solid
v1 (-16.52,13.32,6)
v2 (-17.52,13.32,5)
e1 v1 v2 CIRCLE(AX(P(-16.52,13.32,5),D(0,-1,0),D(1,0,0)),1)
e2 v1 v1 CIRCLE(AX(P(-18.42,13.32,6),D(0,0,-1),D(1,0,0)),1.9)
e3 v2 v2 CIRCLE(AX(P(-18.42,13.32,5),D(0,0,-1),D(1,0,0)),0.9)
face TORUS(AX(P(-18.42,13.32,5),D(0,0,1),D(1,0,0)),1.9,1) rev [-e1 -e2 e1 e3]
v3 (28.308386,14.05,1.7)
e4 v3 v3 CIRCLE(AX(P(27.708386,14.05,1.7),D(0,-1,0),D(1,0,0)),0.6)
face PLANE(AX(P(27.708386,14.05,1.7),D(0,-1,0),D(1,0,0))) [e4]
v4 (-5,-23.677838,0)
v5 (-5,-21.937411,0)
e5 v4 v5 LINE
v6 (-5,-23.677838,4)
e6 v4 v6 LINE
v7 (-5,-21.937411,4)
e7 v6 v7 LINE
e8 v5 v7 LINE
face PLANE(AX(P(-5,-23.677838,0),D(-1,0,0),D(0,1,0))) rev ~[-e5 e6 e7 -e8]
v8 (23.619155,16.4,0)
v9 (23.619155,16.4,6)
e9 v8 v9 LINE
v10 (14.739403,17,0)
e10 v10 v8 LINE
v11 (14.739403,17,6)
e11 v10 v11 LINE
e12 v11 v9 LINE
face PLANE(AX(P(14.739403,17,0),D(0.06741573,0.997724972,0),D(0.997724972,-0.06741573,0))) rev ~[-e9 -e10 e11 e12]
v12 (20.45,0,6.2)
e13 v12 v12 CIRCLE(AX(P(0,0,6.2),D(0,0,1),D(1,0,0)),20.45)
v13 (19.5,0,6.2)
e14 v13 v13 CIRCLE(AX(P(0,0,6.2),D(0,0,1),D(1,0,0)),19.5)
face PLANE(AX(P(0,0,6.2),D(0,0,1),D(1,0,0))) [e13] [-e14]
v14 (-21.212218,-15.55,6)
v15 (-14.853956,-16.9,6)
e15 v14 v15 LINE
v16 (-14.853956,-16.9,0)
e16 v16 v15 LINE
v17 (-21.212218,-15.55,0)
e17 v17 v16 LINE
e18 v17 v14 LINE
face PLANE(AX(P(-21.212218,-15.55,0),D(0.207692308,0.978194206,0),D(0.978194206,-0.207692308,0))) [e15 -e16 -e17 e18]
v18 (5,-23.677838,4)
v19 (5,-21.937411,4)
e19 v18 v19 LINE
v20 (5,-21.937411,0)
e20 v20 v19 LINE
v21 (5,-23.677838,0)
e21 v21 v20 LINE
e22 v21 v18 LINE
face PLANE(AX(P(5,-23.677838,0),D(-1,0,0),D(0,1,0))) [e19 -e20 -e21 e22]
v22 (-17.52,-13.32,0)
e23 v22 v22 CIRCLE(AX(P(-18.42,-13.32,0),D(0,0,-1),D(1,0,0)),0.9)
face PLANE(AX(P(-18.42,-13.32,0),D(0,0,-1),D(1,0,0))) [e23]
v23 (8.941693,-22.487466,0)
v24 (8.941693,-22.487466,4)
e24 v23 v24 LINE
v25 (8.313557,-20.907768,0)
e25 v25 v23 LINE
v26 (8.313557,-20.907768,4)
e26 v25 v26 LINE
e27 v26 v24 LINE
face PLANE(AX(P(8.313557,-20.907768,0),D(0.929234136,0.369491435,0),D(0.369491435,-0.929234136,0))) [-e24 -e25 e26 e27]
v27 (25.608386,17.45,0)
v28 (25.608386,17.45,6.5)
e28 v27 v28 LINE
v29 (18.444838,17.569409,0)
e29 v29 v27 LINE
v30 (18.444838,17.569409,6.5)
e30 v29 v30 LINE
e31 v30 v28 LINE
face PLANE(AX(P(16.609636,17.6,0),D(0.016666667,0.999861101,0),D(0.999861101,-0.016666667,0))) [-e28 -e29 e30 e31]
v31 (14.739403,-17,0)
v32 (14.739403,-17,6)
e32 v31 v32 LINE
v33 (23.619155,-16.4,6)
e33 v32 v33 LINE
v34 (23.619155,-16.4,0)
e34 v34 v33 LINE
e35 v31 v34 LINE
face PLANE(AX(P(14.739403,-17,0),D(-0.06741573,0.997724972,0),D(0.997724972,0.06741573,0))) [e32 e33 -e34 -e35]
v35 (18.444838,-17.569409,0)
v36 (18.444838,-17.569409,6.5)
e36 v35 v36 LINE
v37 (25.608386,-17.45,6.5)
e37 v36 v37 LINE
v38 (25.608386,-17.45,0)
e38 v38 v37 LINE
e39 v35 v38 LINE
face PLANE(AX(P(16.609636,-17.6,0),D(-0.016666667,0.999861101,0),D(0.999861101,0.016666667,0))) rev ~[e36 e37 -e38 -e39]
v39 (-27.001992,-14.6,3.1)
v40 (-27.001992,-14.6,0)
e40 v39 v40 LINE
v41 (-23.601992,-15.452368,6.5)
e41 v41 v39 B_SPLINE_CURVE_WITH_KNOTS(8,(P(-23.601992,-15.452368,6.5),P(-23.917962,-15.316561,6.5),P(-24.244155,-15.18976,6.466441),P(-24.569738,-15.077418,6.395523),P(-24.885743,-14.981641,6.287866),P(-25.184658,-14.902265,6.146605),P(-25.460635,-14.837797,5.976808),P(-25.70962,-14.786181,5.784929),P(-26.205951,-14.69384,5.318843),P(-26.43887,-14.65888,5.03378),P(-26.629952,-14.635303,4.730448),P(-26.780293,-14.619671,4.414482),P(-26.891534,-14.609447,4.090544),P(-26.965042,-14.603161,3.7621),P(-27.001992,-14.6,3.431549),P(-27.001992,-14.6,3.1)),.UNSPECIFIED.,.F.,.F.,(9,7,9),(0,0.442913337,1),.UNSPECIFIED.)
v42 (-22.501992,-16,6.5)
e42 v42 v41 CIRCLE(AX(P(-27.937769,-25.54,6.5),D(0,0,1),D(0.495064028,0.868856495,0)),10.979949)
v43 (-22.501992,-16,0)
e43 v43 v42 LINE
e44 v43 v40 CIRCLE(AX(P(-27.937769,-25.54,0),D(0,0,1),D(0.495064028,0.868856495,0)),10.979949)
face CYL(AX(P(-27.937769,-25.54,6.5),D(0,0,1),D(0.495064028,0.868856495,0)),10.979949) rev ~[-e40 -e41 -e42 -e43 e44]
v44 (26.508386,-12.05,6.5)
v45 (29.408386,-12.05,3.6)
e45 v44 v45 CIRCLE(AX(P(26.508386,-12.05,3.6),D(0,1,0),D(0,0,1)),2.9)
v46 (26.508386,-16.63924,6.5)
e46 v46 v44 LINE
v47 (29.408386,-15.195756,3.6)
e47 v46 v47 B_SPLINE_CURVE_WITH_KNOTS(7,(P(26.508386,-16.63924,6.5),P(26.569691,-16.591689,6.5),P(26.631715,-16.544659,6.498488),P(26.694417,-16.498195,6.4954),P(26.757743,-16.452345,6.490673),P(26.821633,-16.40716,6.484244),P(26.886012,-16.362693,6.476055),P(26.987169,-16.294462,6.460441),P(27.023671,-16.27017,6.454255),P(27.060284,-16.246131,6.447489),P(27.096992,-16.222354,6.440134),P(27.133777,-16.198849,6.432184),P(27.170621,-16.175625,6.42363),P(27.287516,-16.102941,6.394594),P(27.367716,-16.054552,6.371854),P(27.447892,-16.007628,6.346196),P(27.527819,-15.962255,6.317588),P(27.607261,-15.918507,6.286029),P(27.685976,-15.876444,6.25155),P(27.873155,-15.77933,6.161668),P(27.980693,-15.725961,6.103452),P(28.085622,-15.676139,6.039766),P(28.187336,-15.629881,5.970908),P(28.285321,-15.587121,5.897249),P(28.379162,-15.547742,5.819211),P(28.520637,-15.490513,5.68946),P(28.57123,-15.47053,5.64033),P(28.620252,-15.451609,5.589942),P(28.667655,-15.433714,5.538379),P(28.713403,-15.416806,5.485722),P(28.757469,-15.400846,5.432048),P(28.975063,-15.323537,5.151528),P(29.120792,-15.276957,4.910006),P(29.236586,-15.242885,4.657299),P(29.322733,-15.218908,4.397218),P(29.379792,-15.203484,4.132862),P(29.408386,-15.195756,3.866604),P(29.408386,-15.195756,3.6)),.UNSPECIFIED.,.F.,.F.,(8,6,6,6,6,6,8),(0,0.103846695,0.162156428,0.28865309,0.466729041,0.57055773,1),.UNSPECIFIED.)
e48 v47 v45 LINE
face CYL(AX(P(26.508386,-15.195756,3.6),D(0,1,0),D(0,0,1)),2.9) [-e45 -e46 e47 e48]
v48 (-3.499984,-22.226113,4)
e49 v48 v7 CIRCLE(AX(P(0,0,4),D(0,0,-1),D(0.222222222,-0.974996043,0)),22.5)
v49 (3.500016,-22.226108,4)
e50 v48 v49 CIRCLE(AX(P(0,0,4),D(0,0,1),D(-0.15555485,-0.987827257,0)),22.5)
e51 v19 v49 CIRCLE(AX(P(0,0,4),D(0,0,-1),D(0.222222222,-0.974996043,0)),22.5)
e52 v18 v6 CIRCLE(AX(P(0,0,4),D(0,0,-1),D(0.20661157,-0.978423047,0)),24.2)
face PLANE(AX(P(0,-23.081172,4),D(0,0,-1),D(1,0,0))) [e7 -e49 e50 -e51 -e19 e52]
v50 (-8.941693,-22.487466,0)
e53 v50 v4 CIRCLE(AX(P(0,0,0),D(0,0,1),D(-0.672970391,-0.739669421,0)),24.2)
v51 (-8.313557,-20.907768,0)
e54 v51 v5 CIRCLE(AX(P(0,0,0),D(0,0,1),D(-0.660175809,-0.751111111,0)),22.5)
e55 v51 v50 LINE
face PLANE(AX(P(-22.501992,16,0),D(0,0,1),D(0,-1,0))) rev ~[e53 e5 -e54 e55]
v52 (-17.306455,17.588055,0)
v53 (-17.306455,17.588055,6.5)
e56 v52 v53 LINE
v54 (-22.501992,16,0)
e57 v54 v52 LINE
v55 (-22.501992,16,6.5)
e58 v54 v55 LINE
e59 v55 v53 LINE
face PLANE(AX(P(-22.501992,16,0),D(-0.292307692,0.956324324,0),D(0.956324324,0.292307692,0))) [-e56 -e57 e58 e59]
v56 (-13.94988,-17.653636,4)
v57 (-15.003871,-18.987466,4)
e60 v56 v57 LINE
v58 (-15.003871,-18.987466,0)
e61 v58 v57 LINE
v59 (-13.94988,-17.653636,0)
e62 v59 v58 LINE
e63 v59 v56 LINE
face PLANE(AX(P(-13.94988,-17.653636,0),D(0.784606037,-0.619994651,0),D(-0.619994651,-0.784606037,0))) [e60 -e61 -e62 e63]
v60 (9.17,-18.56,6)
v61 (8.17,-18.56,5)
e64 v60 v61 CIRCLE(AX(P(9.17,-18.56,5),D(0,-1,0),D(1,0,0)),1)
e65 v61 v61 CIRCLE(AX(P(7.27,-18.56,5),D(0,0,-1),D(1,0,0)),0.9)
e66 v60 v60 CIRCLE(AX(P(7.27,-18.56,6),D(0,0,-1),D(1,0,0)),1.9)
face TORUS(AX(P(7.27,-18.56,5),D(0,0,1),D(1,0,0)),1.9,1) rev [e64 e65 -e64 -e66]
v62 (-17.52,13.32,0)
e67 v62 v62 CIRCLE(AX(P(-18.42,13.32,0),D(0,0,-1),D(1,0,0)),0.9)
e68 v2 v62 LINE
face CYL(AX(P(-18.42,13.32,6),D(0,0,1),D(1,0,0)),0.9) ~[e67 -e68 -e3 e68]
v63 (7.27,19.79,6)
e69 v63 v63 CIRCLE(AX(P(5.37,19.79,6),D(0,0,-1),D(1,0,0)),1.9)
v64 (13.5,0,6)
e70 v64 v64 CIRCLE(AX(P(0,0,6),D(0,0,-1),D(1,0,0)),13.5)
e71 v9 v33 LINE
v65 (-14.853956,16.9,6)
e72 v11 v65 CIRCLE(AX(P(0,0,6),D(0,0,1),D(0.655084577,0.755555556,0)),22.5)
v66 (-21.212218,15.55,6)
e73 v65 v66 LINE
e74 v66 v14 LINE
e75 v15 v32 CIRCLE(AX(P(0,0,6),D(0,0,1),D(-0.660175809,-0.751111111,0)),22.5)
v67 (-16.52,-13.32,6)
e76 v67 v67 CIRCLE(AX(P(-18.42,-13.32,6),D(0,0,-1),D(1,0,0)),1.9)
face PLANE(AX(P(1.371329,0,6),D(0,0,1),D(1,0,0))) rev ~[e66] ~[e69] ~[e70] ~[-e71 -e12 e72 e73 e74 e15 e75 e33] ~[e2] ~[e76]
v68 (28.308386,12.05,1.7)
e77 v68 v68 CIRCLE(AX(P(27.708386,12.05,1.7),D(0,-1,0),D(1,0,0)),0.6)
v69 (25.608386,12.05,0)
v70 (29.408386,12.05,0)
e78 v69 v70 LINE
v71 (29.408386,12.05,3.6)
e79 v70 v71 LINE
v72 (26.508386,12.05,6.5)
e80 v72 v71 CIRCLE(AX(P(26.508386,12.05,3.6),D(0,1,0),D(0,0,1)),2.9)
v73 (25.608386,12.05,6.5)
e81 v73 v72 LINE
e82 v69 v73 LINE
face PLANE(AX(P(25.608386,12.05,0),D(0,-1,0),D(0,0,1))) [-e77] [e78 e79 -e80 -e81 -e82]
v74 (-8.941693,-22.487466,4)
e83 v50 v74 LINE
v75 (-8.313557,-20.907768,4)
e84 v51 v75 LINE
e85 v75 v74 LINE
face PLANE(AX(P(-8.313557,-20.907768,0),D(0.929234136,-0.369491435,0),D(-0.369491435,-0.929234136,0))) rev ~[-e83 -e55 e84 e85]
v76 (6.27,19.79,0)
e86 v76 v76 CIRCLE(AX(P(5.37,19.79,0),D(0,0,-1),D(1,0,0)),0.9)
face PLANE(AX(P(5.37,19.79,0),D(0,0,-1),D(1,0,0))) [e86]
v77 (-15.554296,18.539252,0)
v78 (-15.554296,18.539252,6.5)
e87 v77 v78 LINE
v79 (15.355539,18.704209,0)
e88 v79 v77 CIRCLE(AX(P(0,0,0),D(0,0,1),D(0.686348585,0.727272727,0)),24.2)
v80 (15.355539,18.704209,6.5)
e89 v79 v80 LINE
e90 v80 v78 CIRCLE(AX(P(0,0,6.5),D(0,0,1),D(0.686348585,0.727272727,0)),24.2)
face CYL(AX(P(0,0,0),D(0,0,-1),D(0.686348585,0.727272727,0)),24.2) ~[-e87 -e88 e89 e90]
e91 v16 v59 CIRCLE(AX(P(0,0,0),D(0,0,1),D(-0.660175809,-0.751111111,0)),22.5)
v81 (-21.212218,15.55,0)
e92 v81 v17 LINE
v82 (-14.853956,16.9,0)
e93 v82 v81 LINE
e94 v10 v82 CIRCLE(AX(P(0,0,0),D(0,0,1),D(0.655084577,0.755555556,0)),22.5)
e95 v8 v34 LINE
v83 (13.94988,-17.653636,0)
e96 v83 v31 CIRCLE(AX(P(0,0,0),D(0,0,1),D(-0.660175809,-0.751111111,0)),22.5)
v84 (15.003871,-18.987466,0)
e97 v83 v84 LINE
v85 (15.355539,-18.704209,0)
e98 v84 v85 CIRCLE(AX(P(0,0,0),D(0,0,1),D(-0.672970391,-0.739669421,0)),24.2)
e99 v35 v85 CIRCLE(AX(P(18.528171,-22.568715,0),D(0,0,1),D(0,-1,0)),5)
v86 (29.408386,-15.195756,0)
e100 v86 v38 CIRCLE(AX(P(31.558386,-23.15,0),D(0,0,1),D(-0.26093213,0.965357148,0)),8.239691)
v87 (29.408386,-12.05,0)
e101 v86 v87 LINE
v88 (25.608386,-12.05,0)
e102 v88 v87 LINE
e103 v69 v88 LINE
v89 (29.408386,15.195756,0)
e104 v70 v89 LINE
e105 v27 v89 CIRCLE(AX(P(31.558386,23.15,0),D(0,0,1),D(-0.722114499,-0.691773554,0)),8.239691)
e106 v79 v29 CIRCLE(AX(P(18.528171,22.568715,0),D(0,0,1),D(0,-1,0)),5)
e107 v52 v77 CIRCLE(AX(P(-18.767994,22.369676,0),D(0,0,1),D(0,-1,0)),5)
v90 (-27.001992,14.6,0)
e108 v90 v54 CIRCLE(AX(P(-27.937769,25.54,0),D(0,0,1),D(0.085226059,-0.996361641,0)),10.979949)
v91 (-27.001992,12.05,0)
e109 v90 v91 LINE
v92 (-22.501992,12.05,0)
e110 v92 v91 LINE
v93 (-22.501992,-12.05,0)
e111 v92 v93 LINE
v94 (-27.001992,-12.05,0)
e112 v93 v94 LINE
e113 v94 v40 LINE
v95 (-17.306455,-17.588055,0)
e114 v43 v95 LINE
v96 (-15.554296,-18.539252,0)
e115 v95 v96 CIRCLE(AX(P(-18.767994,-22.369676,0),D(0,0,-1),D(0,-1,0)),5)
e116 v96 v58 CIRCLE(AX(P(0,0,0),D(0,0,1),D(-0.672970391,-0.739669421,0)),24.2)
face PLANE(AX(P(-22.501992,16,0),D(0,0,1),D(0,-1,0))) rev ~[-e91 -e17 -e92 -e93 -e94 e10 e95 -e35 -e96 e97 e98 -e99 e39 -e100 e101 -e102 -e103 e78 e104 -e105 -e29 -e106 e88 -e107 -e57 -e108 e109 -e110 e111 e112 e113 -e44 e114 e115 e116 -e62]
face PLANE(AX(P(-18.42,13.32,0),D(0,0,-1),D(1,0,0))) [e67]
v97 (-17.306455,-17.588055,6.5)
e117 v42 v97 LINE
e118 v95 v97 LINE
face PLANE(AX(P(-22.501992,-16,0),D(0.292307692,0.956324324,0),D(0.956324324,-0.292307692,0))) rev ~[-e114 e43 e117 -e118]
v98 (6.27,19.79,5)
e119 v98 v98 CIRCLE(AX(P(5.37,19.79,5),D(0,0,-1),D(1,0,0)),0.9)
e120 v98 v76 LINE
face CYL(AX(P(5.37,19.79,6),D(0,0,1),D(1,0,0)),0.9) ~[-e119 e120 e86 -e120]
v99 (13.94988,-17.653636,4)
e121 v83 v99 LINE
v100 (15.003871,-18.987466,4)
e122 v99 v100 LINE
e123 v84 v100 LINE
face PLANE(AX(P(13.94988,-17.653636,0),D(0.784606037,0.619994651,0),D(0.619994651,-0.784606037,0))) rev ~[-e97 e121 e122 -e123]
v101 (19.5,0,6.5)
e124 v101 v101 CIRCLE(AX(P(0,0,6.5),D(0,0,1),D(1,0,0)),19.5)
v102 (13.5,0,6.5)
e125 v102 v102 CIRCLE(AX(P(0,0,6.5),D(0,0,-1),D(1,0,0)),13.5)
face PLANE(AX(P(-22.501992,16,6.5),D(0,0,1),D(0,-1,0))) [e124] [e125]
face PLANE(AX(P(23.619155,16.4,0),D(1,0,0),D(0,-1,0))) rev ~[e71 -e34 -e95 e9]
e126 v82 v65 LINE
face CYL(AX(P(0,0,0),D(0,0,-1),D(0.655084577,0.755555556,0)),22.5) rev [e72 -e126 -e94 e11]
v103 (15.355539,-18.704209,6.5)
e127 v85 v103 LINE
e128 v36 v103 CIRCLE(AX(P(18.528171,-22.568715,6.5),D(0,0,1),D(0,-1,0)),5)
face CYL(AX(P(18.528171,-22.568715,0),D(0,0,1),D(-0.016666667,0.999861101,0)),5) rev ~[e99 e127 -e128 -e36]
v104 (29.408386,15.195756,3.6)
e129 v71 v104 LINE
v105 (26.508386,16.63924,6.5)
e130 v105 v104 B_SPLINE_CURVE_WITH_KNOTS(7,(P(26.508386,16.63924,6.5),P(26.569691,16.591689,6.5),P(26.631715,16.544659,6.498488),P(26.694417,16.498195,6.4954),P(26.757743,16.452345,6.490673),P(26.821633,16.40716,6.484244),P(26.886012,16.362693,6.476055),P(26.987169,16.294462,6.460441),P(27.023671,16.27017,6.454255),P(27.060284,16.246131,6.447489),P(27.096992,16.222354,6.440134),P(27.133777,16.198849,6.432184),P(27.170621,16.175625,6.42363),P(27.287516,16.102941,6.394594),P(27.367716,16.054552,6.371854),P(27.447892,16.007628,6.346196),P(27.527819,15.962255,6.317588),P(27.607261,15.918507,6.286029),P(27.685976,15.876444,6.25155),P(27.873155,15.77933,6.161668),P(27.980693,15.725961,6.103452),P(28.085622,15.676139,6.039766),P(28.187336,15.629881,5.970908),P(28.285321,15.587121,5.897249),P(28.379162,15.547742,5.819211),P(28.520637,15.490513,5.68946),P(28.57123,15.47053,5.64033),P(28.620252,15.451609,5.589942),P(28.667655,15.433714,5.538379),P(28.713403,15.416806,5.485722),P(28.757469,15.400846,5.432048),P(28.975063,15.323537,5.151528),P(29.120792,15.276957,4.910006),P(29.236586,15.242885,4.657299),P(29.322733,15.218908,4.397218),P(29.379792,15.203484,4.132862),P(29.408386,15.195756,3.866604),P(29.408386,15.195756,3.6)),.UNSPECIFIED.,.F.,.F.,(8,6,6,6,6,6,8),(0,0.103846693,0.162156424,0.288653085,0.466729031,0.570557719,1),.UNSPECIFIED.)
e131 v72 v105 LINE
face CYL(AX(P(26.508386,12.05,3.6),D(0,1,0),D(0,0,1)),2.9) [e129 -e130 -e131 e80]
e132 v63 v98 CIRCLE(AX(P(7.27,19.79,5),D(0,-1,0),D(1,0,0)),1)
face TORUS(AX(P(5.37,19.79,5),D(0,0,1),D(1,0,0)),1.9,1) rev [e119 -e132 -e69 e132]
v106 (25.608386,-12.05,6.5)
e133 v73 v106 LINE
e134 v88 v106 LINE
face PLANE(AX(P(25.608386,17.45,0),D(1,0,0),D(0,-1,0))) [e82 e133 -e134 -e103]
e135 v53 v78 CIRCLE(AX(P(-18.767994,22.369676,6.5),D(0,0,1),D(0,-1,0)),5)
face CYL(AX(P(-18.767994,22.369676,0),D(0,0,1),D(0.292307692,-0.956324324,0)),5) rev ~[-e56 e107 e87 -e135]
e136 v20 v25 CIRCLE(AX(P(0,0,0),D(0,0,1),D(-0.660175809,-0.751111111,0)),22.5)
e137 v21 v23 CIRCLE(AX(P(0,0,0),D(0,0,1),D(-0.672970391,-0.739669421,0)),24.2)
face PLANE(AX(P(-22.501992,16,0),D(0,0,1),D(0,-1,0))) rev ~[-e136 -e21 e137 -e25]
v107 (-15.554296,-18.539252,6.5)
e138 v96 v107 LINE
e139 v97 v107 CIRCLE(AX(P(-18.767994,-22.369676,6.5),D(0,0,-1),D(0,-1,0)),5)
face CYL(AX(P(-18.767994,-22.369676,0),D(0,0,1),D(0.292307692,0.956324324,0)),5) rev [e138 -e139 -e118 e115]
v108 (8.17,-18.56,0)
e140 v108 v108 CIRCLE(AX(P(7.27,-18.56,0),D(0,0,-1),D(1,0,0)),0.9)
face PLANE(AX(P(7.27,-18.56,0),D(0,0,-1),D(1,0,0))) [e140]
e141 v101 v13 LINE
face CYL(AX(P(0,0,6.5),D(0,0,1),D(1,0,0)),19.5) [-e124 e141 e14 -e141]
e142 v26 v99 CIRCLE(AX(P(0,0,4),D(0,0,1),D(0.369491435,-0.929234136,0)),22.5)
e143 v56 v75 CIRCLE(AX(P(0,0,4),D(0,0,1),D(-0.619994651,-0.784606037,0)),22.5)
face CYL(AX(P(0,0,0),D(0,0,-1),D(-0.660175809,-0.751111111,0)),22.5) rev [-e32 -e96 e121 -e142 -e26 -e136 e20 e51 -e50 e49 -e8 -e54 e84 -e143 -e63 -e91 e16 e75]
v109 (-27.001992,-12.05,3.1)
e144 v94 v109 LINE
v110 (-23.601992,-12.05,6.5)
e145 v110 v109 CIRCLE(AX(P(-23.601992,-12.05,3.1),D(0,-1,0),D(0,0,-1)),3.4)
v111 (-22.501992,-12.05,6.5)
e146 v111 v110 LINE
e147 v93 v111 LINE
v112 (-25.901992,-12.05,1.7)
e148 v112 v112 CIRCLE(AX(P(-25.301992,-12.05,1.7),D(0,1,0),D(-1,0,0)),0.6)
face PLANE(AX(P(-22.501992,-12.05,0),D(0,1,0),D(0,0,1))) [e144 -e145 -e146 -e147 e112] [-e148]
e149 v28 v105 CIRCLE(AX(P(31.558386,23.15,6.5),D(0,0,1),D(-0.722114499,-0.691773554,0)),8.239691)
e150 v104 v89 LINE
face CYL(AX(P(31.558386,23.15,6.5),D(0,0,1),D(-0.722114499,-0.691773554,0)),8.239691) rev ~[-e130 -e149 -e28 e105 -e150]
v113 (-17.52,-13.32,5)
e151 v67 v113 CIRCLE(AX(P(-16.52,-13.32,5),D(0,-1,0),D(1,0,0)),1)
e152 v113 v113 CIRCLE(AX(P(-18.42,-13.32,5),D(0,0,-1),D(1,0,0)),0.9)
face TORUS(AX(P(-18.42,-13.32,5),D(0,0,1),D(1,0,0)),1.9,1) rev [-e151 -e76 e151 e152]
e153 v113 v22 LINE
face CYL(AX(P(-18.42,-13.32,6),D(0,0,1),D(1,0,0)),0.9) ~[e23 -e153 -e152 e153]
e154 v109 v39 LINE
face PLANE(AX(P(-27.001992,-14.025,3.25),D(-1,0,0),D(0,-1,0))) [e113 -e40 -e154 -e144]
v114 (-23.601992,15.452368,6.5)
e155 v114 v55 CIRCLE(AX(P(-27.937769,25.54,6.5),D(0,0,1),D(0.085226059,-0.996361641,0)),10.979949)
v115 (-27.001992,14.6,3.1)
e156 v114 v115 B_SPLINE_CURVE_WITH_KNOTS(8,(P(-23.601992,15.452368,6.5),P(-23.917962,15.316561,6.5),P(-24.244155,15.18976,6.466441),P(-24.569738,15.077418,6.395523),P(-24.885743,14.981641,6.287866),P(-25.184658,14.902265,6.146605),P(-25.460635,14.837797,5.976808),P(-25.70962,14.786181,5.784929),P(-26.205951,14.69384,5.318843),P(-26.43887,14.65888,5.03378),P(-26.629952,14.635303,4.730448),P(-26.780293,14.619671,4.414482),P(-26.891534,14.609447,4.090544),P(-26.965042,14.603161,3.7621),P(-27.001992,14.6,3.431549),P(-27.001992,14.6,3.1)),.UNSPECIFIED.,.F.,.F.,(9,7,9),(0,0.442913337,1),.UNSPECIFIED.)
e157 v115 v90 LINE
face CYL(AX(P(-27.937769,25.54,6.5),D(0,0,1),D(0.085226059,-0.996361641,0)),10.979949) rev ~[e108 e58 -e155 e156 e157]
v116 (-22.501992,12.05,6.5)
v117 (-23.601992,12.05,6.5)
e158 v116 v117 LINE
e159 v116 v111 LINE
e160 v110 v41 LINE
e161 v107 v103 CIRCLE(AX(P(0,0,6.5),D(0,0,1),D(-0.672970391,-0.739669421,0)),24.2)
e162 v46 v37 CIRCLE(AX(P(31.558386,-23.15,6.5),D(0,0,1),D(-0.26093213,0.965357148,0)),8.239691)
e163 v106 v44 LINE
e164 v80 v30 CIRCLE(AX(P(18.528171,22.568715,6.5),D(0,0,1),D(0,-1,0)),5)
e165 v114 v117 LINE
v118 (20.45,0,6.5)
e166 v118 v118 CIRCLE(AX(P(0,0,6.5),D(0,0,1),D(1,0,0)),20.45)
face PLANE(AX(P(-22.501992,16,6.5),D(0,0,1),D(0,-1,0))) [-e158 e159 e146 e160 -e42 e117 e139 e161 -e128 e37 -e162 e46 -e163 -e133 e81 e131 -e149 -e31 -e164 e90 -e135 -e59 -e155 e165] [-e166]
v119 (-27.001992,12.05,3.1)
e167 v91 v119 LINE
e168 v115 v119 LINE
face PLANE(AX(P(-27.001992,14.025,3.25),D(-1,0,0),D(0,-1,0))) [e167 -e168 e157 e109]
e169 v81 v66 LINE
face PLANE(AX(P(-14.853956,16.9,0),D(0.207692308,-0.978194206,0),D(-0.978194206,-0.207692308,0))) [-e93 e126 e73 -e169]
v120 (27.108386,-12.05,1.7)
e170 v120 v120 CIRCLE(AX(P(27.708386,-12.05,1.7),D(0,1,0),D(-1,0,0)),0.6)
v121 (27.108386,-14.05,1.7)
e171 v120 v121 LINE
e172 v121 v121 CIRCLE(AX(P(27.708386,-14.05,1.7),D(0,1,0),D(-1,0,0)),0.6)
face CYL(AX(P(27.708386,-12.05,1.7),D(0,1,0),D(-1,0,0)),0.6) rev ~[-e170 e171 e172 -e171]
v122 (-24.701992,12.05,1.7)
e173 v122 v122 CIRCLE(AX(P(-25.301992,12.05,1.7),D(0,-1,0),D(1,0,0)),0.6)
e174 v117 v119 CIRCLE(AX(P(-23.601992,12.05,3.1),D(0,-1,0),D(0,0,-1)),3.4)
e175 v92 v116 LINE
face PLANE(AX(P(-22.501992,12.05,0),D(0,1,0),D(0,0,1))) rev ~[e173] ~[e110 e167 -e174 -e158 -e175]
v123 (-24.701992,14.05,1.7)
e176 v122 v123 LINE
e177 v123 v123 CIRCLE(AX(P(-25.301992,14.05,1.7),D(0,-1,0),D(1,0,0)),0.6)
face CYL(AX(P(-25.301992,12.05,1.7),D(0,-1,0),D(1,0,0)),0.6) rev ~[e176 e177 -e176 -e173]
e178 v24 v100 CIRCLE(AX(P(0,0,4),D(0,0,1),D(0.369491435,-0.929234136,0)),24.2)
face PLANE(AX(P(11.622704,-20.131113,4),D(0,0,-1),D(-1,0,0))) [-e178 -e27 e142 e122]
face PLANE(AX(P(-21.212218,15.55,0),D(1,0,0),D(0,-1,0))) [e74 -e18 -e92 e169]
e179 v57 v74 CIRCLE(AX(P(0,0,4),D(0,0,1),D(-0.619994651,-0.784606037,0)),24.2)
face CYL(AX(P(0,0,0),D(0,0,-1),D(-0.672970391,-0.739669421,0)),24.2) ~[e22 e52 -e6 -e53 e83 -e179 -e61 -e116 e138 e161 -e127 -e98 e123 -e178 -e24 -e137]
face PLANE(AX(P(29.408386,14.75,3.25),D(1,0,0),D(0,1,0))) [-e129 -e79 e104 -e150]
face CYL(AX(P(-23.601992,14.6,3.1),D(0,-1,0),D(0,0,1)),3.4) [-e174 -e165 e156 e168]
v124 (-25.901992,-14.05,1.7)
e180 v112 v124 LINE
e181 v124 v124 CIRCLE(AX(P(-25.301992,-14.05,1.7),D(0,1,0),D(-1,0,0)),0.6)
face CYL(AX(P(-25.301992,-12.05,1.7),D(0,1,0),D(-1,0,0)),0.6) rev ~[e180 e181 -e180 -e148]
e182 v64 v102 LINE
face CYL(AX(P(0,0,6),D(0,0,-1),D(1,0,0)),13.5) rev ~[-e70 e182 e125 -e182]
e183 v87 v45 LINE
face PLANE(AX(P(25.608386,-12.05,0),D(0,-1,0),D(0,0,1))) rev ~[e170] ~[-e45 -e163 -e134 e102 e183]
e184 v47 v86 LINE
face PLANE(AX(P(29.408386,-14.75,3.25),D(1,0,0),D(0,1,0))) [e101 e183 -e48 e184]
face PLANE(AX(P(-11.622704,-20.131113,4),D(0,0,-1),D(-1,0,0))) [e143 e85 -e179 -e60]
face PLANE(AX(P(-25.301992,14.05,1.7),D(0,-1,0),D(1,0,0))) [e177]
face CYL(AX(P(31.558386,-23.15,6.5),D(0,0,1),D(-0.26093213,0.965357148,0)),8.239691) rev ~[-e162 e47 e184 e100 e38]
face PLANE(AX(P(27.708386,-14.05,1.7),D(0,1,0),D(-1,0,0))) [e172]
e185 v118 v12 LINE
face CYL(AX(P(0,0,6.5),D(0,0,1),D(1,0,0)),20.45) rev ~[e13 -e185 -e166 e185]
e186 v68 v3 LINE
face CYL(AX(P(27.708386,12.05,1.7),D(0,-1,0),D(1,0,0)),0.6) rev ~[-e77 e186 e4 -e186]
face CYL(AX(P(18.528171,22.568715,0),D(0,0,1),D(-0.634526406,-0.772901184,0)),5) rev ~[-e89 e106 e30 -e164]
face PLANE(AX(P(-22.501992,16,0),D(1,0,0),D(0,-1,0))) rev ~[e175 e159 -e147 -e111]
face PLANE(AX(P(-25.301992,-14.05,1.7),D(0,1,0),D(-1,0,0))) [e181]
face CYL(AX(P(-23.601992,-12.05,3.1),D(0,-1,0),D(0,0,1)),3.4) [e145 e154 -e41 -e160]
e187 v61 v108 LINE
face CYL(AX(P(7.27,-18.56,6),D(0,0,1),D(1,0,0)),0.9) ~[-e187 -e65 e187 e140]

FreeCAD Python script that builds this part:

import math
import FreeCAD as App
import Part
import Sketcher
Q = App.Units.Quantity


def edges_at(feature, points):
    """Names of the edges that pass closest to the given points."""
    edges = feature.Shape.Edges
    near = lambda p: min(range(len(edges)), key=lambda i: edges[i].distToShape(Part.Vertex(*p))[0])
    return sorted({f"Edge{near(p) + 1}" for p in points})


def add_polygon(sketch, points):
    """Adds a closed chain of lines whose ends are joined by coincident constraints."""
    first, n = sketch.GeometryCount, len(points)
    for a, b in zip(points, points[1:] + points[:1]):
        sketch.addGeometry(Part.LineSegment(App.Vector(*a, 0), App.Vector(*b, 0)), False)
    for i in range(n):
        sketch.addConstraint(Sketcher.Constraint("Coincident", first + i, 2, first + (i + 1) % n, 1))

doc = App.newDocument("Part")
body = doc.addObject("PartDesign::Body", "Body")

sketch1 = body.newObject("Sketcher::SketchObject", "Sketch")
sketch1.AttachmentSupport = (doc.getObject("XY_Plane"), [""])
sketch1.MapMode = "FlatFace"
sketch1.addGeometry([
    Part.LineSegment(App.Vector(-23, 16, 0), App.Vector(-23, -16, 0)),
    Part.LineSegment(App.Vector(-23, -16, 0), App.Vector(-16, -18, 0)),
    Part.ArcOfCircle(Part.Circle(App.Vector(0, 0, 0), App.Vector(0, 0, 1), 24), math.radians(-132), math.radians(-47)),
    Part.LineSegment(App.Vector(17, -18, 0), App.Vector(26, -17, 0)),
    Part.LineSegment(App.Vector(26, -17, 0), App.Vector(26, 17, 0)),
    Part.LineSegment(App.Vector(26, 17, 0), App.Vector(17, 18, 0)),
    Part.ArcOfCircle(Part.Circle(App.Vector(0, 0, 0), App.Vector(0, 0, 1), 24), math.radians(47), math.radians(132)),
    Part.LineSegment(App.Vector(-16, 18, 0), App.Vector(-23, 16, 0)),
], False)
sketch1.addConstraint([
    Sketcher.Constraint("Coincident", 0, 2, 1, 1),
    Sketcher.Constraint("Coincident", 1, 2, 2, 1),
    Sketcher.Constraint("Coincident", 2, 2, 3, 1),
    Sketcher.Constraint("Coincident", 3, 2, 4, 1),
    Sketcher.Constraint("Coincident", 4, 2, 5, 1),
    Sketcher.Constraint("Coincident", 5, 2, 6, 1),
    Sketcher.Constraint("Coincident", 6, 2, 7, 1),
    Sketcher.Constraint("Coincident", 7, 2, 0, 1),
    Sketcher.Constraint("Vertical", 0),
    Sketcher.Constraint("Vertical", 4),
    Sketcher.Constraint("Coincident", 2, 3, -1, 1),
    Sketcher.Constraint("Coincident", 6, 3, -1, 1),
    Sketcher.Constraint("Equal", 2, 6),
    Sketcher.Constraint("Vertical", 2, 2, 5, 2),
    Sketcher.Constraint("Vertical", 1, 2, 6, 2),
    Sketcher.Constraint("Equal", 3, 5),
    Sketcher.Constraint("Equal", 1, 7),
    Sketcher.Constraint("Radius", 2, Q("24.2 mm")),
    Sketcher.Constraint("DistanceY", 0, 2, 0, 1, Q("32 mm")),
    Sketcher.Constraint("Distance", 3, Q("9 mm")),
    Sketcher.Constraint("DistanceY", 4, 1, 4, 2, Q("34.9 mm")),
    Sketcher.Constraint("Distance", 1, Q("6.5 mm")),
    Sketcher.Constraint("DistanceY", 1, 2, -1, 1, Q("17.9 mm")),
    Sketcher.Constraint("DistanceY", 2, 2, -1, 1, Q("17.6 mm")),
])
pad1 = body.newObject("PartDesign::Pad", "Pad")
pad1.Profile = sketch1
pad1.Length = 6.5

sketch2 = body.newObject("Sketcher::SketchObject", "Sketch001")
sketch2.AttachmentSupport = (doc.getObject("XY_Plane"), [""])
sketch2.MapMode = "FlatFace"
sketch2.addGeometry([
    Part.LineSegment(App.Vector(-15, 17, 0), App.Vector(-21, 16, 0)),
    Part.LineSegment(App.Vector(-21, 16, 0), App.Vector(-21, -16, 0)),
    Part.LineSegment(App.Vector(-21, -16, 0), App.Vector(-15, -17, 0)),
    Part.ArcOfCircle(Part.Circle(App.Vector(0, 0, 0), App.Vector(0, 0, 1), 22), math.radians(-131), math.radians(-49)),
    Part.LineSegment(App.Vector(15, -17, 0), App.Vector(24, -16, 0)),
    Part.LineSegment(App.Vector(24, -16, 0), App.Vector(24, 16, 0)),
    Part.LineSegment(App.Vector(24, 16, 0), App.Vector(15, 17, 0)),
    Part.ArcOfCircle(Part.Circle(App.Vector(0, 0, 0), App.Vector(0, 0, 1), 22), math.radians(49), math.radians(131)),
], False)
sketch2.addConstraint([
    Sketcher.Constraint("Coincident", 0, 2, 1, 1),
    Sketcher.Constraint("Coincident", 1, 2, 2, 1),
    Sketcher.Constraint("Coincident", 2, 2, 3, 1),
    Sketcher.Constraint("Coincident", 3, 2, 4, 1),
    Sketcher.Constraint("Coincident", 4, 2, 5, 1),
    Sketcher.Constraint("Coincident", 5, 2, 6, 1),
    Sketcher.Constraint("Coincident", 6, 2, 7, 1),
    Sketcher.Constraint("Coincident", 7, 2, 0, 1),
    Sketcher.Constraint("Vertical", 1),
    Sketcher.Constraint("Vertical", 5),
    Sketcher.Constraint("Coincident", 3, 3, -1, 1),
    Sketcher.Constraint("Coincident", 7, 3, -1, 1),
    Sketcher.Constraint("Equal", 3, 7),
    Sketcher.Constraint("Vertical", 3, 2, 6, 2),
    Sketcher.Constraint("Vertical", 2, 2, 7, 2),
    Sketcher.Constraint("Equal", 0, 2),
    Sketcher.Constraint("Equal", 4, 6),
    Sketcher.Constraint("Radius", 3, Q("22.5 mm")),
    Sketcher.Constraint("DistanceY", 1, 2, 1, 1, Q("31.1 mm")),
    Sketcher.Constraint("DistanceY", 5, 1, 5, 2, Q("32.8 mm")),
    Sketcher.Constraint("DistanceY", 3, 2, -1, 1, Q("17 mm")),
    Sketcher.Constraint("Distance", 0, Q("6.5 mm")),
    Sketcher.Constraint("Distance", 4, Q("8.9 mm")),
    Sketcher.Constraint("DistanceY", 2, 2, -1, 1, Q("16.9 mm")),
])
pocket1 = body.newObject("PartDesign::Pocket", "Pocket")
pocket1.Profile = sketch2
pocket1.Length = 6
pocket1.Reversed = True

sketch3 = body.newObject("Sketcher::SketchObject", "Sketch002")
sketch3.AttachmentSupport = (doc.getObject("XY_Plane"), [""])
sketch3.MapMode = "FlatFace"
sketch3.AttachmentOffset = App.Placement(App.Vector(0, 0, 6), App.Rotation())
sketch3.addGeometry(Part.Circle(App.Vector(0, 0, 0), App.Vector(0, 0, 1), 14), False)
sketch3.addConstraint([
    Sketcher.Constraint("Coincident", 0, 3, -1, 1),
    Sketcher.Constraint("Diameter", 0, Q("27 mm")),
])
pocket2 = body.newObject("PartDesign::Pocket", "Pocket001")
pocket2.Profile = sketch3
pocket2.Length = 1
pocket2.Reversed = True

sketch4 = body.newObject("Sketcher::SketchObject", "Sketch003")
sketch4.AttachmentSupport = (doc.getObject("YZ_Plane"), [""])
sketch4.MapMode = "FlatFace"
sketch4.AttachmentOffset = App.Placement(App.Vector(0, 0, 25.608386), App.Rotation())
add_polygon(sketch4, [(-17, 6), (-17, 0), (-12, 0), (-12, 6)])
add_polygon(sketch4, [(12, 6), (12, 0), (17, 0), (17, 6)])
sketch4.addConstraint([
    Sketcher.Constraint("Vertical", 0),
    Sketcher.Constraint("Horizontal", 1),
    Sketcher.Constraint("Vertical", 2),
    Sketcher.Constraint("Horizontal", 3),
    Sketcher.Constraint("Vertical", 4),
    Sketcher.Constraint("Horizontal", 5),
    Sketcher.Constraint("Vertical", 6),
    Sketcher.Constraint("Horizontal", 7),
    Sketcher.Constraint("Symmetric", 1, 2, 4, 2, -1, 1),
    Sketcher.Constraint("Symmetric", 0, 2, 5, 2, -2),
    Sketcher.Constraint("Horizontal", 3, 2, 6, 2),
    Sketcher.Constraint("DistanceX", 1, 1, 1, 2, Q("5.4 mm")),
    Sketcher.Constraint("DistanceY", 0, 2, 0, 1, Q("6.5 mm")),
    Sketcher.Constraint("DistanceX", 1, 2, 4, 2, Q("24.1 mm")),
])
pad2 = body.newObject("PartDesign::Pad", "Pad001")
pad2.Profile = sketch4
pad2.Length = 3.8

sketch5 = body.newObject("Sketcher::SketchObject", "Sketch004")
sketch5.AttachmentSupport = (doc.getObject("XY_Plane"), [""])
sketch5.MapMode = "FlatFace"
sketch5.AttachmentOffset = App.Placement(App.Vector(0, 0, 6.5), App.Rotation())
sketch5.addGeometry([
    Part.ArcOfCircle(Part.Circle(App.Vector(31.6, 23.1, 0), App.Vector(0, 0, 1), 8.2), math.radians(-136), math.radians(-105)),
    Part.LineSegment(App.Vector(29.4, 15.2, 0), App.Vector(29.4, 17.4, 0)),
    Part.LineSegment(App.Vector(29.4, 17.4, 0), App.Vector(25.6, 17.4, 0)),
    Part.ArcOfCircle(Part.Circle(App.Vector(31.6, -23.1, 0), App.Vector(0, 0, 1), 8.2), math.radians(105), math.radians(136)),
    Part.LineSegment(App.Vector(25.6, -17.4, 0), App.Vector(29.4, -17.4, 0)),
    Part.LineSegment(App.Vector(29.4, -17.4, 0), App.Vector(29.4, -15.2, 0)),
], False)
sketch5.addConstraint([
    Sketcher.Constraint("Coincident", 0, 2, 1, 1),
    Sketcher.Constraint("Coincident", 1, 2, 2, 1),
    Sketcher.Constraint("Coincident", 2, 2, 0, 1),
    Sketcher.Constraint("Coincident", 3, 2, 4, 1),
    Sketcher.Constraint("Coincident", 4, 2, 5, 1),
    Sketcher.Constraint("Coincident", 5, 2, 3, 1),
    Sketcher.Constraint("Vertical", 1),
    Sketcher.Constraint("Horizontal", 2),
    Sketcher.Constraint("Horizontal", 4),
    Sketcher.Constraint("Vertical", 5),
    Sketcher.Constraint("Equal", 0, 3),
    Sketcher.Constraint("Symmetric", 0, 3, 3, 3, -1),
    Sketcher.Constraint("Symmetric", 1, 2, 4, 2, -1),
    Sketcher.Constraint("DistanceX", 2, 2, 2, 1, Q("3.8 mm")),
    Sketcher.Constraint("DistanceY", 3, 3, 0, 3, Q("46.3 mm")),
    Sketcher.Constraint("DistanceY", 1, 2, 0, 3, Q("5.7 mm")),
    Sketcher.Constraint("Radius", 0, Q("8.239691 mm")),
    Sketcher.Constraint("DistanceX", -1, 1, 0, 3, Q("31.558386 mm")),
])
pocket3 = body.newObject("PartDesign::Pocket", "Pocket002")
pocket3.Profile = sketch5
pocket3.Length = 10

sketch6 = body.newObject("Sketcher::SketchObject", "Sketch005")
sketch6.AttachmentSupport = (doc.getObject("XZ_Plane"), [""])
sketch6.MapMode = "FlatFace"
sketch6.AttachmentOffset = App.Placement(App.Vector(0, 0, 12.05), App.Rotation())
sketch6.addGeometry(Part.Circle(App.Vector(27.7, 1.7, 0), App.Vector(0, 0, 1), 0.6), False)
sketch6.addConstraint([
    Sketcher.Constraint("Diameter", 0, Q("1.2 mm")),
    Sketcher.Constraint("DistanceY", -1, 1, 0, 3, Q("1.7 mm")),
    Sketcher.Constraint("DistanceX", -1, 1, 0, 3, Q("27.708386 mm")),
])
pocket4 = body.newObject("PartDesign::Pocket", "Pocket003")
pocket4.Profile = sketch6
pocket4.Length = 2
pocket4.Reversed = True

sketch7 = body.newObject("Sketcher::SketchObject", "Sketch006")
sketch7.AttachmentSupport = (doc.getObject("XZ_Plane"), [""])
sketch7.MapMode = "FlatFace"
sketch7.AttachmentOffset = App.Placement(App.Vector(0, 0, -12.05), App.Rotation())
sketch7.addGeometry(Part.Circle(App.Vector(27.7, 1.7, 0), App.Vector(0, 0, 1), 0.6), False)
sketch7.addConstraint([
    Sketcher.Constraint("Diameter", 0, Q("1.2 mm")),
    Sketcher.Constraint("DistanceY", -1, 1, 0, 3, Q("1.7 mm")),
    Sketcher.Constraint("DistanceX", -1, 1, 0, 3, Q("27.708386 mm")),
])
pocket5 = body.newObject("PartDesign::Pocket", "Pocket004")
pocket5.Profile = sketch7
pocket5.Length = 2
doc.recompute()

fillet = body.newObject("PartDesign::Fillet", "Fillet")
fillet.Base = (pocket5, edges_at(pocket5, [(29.408, -13.623, 6.5)]))
fillet.Radius = 2.9
doc.recompute()

fillet2 = body.newObject("PartDesign::Fillet", "Fillet001")
fillet2.Base = (fillet, edges_at(fillet, [(29.408, 13.623, 6.5)]))
fillet2.Radius = 2.9
doc.recompute()

fillet3 = body.newObject("PartDesign::Fillet", "Fillet002")
fillet3.Base = (fillet2, edges_at(fillet2, [(16.61, -17.6, 3.25)]))
fillet3.Radius = 5
doc.recompute()

fillet4 = body.newObject("PartDesign::Fillet", "Fillet003")
fillet4.Base = (fillet3, edges_at(fillet3, [(16.61, 17.6, 3.25)]))
fillet4.Radius = 5
doc.recompute()

fillet5 = body.newObject("PartDesign::Fillet", "Fillet004")
fillet5.Base = (fillet4, edges_at(fillet4, [(-16.286, -17.9, 3.25)]))
fillet5.Radius = 5
doc.recompute()

fillet6 = body.newObject("PartDesign::Fillet", "Fillet005")
fillet6.Base = (fillet5, edges_at(fillet5, [(-16.286, 17.9, 3.25)]))
fillet6.Radius = 5

sketch8 = body.newObject("Sketcher::SketchObject", "Sketch007")
sketch8.AttachmentSupport = (doc.getObject("YZ_Plane"), [""])
sketch8.MapMode = "FlatFace"
sketch8.AttachmentOffset = App.Placement(App.Vector(0, 0, -22.501992), App.Rotation())
add_polygon(sketch8, [(16, 6.5), (16, 0), (12.1, 0), (12.1, 6.5)])
add_polygon(sketch8, [(-12.1, 6.5), (-12.1, 0), (-16, 0), (-16, 6.5)])
sketch8.addConstraint([
    Sketcher.Constraint("Vertical", 0),
    Sketcher.Constraint("Horizontal", 1),
    Sketcher.Constraint("Vertical", 2),
    Sketcher.Constraint("Horizontal", 3),
    Sketcher.Constraint("Vertical", 4),
    Sketcher.Constraint("Horizontal", 5),
    Sketcher.Constraint("Vertical", 6),
    Sketcher.Constraint("Horizontal", 7),
    Sketcher.Constraint("Symmetric", 1, 2, 4, 2, -1, 1),
    Sketcher.Constraint("Symmetric", 0, 2, 5, 2, -2),
    Sketcher.Constraint("Horizontal", 3, 2, 6, 2),
    Sketcher.Constraint("DistanceY", 0, 2, 0, 1, Q("6.5 mm")),
    Sketcher.Constraint("DistanceX", -1, 1, 0, 2, Q("16 mm")),
    Sketcher.Constraint("DistanceX", 1, 2, 1, 1, Q("3.95 mm")),
])
pad3 = body.newObject("PartDesign::Pad", "Pad002")
pad3.Profile = sketch8
pad3.Length = 4.5
pad3.Reversed = True

sketch9 = body.newObject("Sketcher::SketchObject", "Sketch008")
sketch9.AttachmentSupport = (doc.getObject("XY_Plane"), [""])
sketch9.MapMode = "FlatFace"
sketch9.AttachmentOffset = App.Placement(App.Vector(0, 0, 6.5), App.Rotation())
sketch9.addGeometry([
    Part.ArcOfCircle(Part.Circle(App.Vector(-27.9, 25.5, 0), App.Vector(0, 0, 1), 11), math.radians(-85), math.radians(-60)),
    Part.LineSegment(App.Vector(-22.5, 16, 0), App.Vector(-27, 16, 0)),
    Part.LineSegment(App.Vector(-27, 16, 0), App.Vector(-27, 14.6, 0)),
    Part.ArcOfCircle(Part.Circle(App.Vector(-27.9, -25.5, 0), App.Vector(0, 0, 1), 11), math.radians(60), math.radians(85)),
    Part.LineSegment(App.Vector(-27, -14.6, 0), App.Vector(-27, -16, 0)),
    Part.LineSegment(App.Vector(-27, -16, 0), App.Vector(-22.5, -16, 0)),
], False)
sketch9.addConstraint([
    Sketcher.Constraint("Coincident", 0, 2, 1, 1),
    Sketcher.Constraint("Coincident", 1, 2, 2, 1),
    Sketcher.Constraint("Coincident", 2, 2, 0, 1),
    Sketcher.Constraint("Coincident", 3, 2, 4, 1),
    Sketcher.Constraint("Coincident", 4, 2, 5, 1),
    Sketcher.Constraint("Coincident", 5, 2, 3, 1),
    Sketcher.Constraint("Horizontal", 1),
    Sketcher.Constraint("Vertical", 2),
    Sketcher.Constraint("Vertical", 4),
    Sketcher.Constraint("Horizontal", 5),
    Sketcher.Constraint("Equal", 0, 3),
    Sketcher.Constraint("Symmetric", 0, 3, 3, 3, -1),
    Sketcher.Constraint("Symmetric", 1, 2, 4, 2, -1),
    Sketcher.Constraint("DistanceX", 1, 2, 1, 1, Q("4.5 mm")),
    Sketcher.Constraint("DistanceY", 2, 2, 2, 1, Q("1.4 mm")),
    Sketcher.Constraint("DistanceY", -1, 1, 0, 2, Q("16 mm")),
    Sketcher.Constraint("DistanceY", -1, 1, 0, 3, Q("25.54 mm")),
    Sketcher.Constraint("DistanceX", 0, 3, -1, 1, Q("27.937769 mm")),
])
pocket6 = body.newObject("PartDesign::Pocket", "Pocket005")
pocket6.Profile = sketch9
pocket6.Length = 10

sketch10 = body.newObject("Sketcher::SketchObject", "Sketch009")
sketch10.AttachmentSupport = (doc.getObject("XZ_Plane"), [""])
sketch10.MapMode = "FlatFace"
sketch10.AttachmentOffset = App.Placement(App.Vector(0, 0, 12.05), App.Rotation())
sketch10.addGeometry(Part.Circle(App.Vector(-25.3, 1.7, 0), App.Vector(0, 0, 1), 0.6), False)
sketch10.addConstraint([
    Sketcher.Constraint("Diameter", 0, Q("1.2 mm")),
    Sketcher.Constraint("DistanceY", -1, 1, 0, 3, Q("1.7 mm")),
    Sketcher.Constraint("DistanceX", 0, 3, -1, 1, Q("25.301992 mm")),
])
pocket7 = body.newObject("PartDesign::Pocket", "Pocket006")
pocket7.Profile = sketch10
pocket7.Length = 2
pocket7.Reversed = True

sketch11 = body.newObject("Sketcher::SketchObject", "Sketch010")
sketch11.AttachmentSupport = (doc.getObject("XZ_Plane"), [""])
sketch11.MapMode = "FlatFace"
sketch11.AttachmentOffset = App.Placement(App.Vector(0, 0, -12.05), App.Rotation())
sketch11.addGeometry(Part.Circle(App.Vector(-25.3, 1.7, 0), App.Vector(0, 0, 1), 0.6), False)
sketch11.addConstraint([
    Sketcher.Constraint("Diameter", 0, Q("1.2 mm")),
    Sketcher.Constraint("DistanceY", -1, 1, 0, 3, Q("1.7 mm")),
    Sketcher.Constraint("DistanceX", 0, 3, -1, 1, Q("25.301992 mm")),
])
pocket8 = body.newObject("PartDesign::Pocket", "Pocket007")
pocket8.Profile = sketch11
pocket8.Length = 2
doc.recompute()

fillet7 = body.newObject("PartDesign::Fillet", "Fillet006")
fillet7.Base = (pocket8, edges_at(pocket8, [(-27.002, 13.325, 6.5)]))
fillet7.Radius = 3.4
doc.recompute()

fillet8 = body.newObject("PartDesign::Fillet", "Fillet007")
fillet8.Base = (fillet7, edges_at(fillet7, [(-27.002, -13.325, 6.5)]))
fillet8.Radius = 3.4

sketch12 = body.newObject("Sketcher::SketchObject", "Sketch011")
sketch12.AttachmentSupport = (doc.getObject("XY_Plane"), [""])
sketch12.MapMode = "FlatFace"
sketch12.AttachmentOffset = App.Placement(App.Vector(0, 0, 6.5), App.Rotation())
sketch12.addGeometry([
    Part.Circle(App.Vector(0, 0, 0), App.Vector(0, 0, 1), 20),
    Part.Circle(App.Vector(0, 0, 0), App.Vector(0, 0, 1), 20),
], False)
sketch12.addConstraint([
    Sketcher.Constraint("Coincident", 0, 3, -1, 1),
    Sketcher.Constraint("Coincident", 1, 3, -1, 1),
    Sketcher.Constraint("Diameter", 1, Q("39 mm")),
    Sketcher.Constraint("Diameter", 0, Q("40.9 mm")),
])
pocket9 = body.newObject("PartDesign::Pocket", "Pocket008")
pocket9.Profile = sketch12
pocket9.Length = 0.3

sketch13 = body.newObject("Sketcher::SketchObject", "Sketch012")
sketch13.AttachmentSupport = (doc.getObject("XY_Plane"), [""])
sketch13.MapMode = "FlatFace"
sketch13.AttachmentOffset = App.Placement(App.Vector(0, 0, 6), App.Rotation())
sketch13.addGeometry([
    Part.Circle(App.Vector(-18.4, -13.3, 0), App.Vector(0, 0, 1), 0.9),
    Part.Circle(App.Vector(-18.4, 13.3, 0), App.Vector(0, 0, 1), 0.9),
    Part.Circle(App.Vector(7.3, -18.6, 0), App.Vector(0, 0, 1), 0.9),
    Part.Circle(App.Vector(5.4, 19.8, 0), App.Vector(0, 0, 1), 0.9),
], False)
sketch13.addConstraint([
    Sketcher.Constraint("Equal", 0, 1),
    Sketcher.Constraint("Equal", 1, 2),
    Sketcher.Constraint("Equal", 2, 3),
    Sketcher.Constraint("Symmetric", 0, 3, 1, 3, -1),
    Sketcher.Constraint("Diameter", 0, Q("1.8 mm")),
    Sketcher.Constraint("DistanceX", 3, 3, 2, 3, Q("1.9 mm")),
    Sketcher.Constraint("DistanceX", 0, 3, -1, 1, Q("18.42 mm")),
    Sketcher.Constraint("DistanceY", 0, 3, -1, 1, Q("13.32 mm")),
    Sketcher.Constraint("DistanceX", -1, 1, 2, 3, Q("7.27 mm")),
    Sketcher.Constraint("DistanceY", 2, 3, -1, 1, Q("18.56 mm")),
    Sketcher.Constraint("DistanceY", -1, 1, 3, 3, Q("19.79 mm")),
])
pad4 = body.newObject("PartDesign::Pad", "Pad003")
pad4.Profile = sketch13
pad4.Length = 6
pad4.Reversed = True
doc.recompute()

fillet9 = body.newObject("PartDesign::Fillet", "Fillet008")
fillet9.Base = (pad4, edges_at(pad4, [
    (-19.32, -13.32, 6),
    (6.37, -18.56, 6),
    (-19.32, 13.32, 6),
    (4.47, 19.79, 6),
]))
fillet9.Radius = 1

sketch14 = body.newObject("Sketcher::SketchObject", "Sketch013")
sketch14.AttachmentSupport = (doc.getObject("XY_Plane"), [""])
sketch14.MapMode = "FlatFace"
sketch14.addGeometry([
    Part.LineSegment(App.Vector(-5, -23.7, 0), App.Vector(-5, -21.9, 0)),
    Part.ArcOfCircle(Part.Circle(App.Vector(0, 0, 0), App.Vector(0, 0, 1), 22.5), math.radians(-103), math.radians(-77)),
    Part.LineSegment(App.Vector(5, -21.9, 0), App.Vector(5, -23.7, 0)),
    Part.ArcOfCircle(Part.Circle(App.Vector(0, 0, 0), App.Vector(0, 0, 1), 24.2), math.radians(-102), math.radians(-78)),
], False)
sketch14.addConstraint([
    Sketcher.Constraint("Coincident", 0, 2, 1, 1),
    Sketcher.Constraint("Coincident", 1, 2, 2, 1),
    Sketcher.Constraint("Coincident", 2, 2, 3, 2),
    Sketcher.Constraint("Coincident", 3, 1, 0, 1),
    Sketcher.Constraint("Vertical", 0),
    Sketcher.Constraint("Vertical", 2),
    Sketcher.Constraint("Coincident", 1, 3, -1, 1),
    Sketcher.Constraint("Coincident", 3, 3, -1, 1),
    Sketcher.Constraint("Horizontal", 0, 2, 1, 2),
    Sketcher.Constraint("Radius", 1, Q("22.5 mm")),
    Sketcher.Constraint("Radius", 3, Q("24.2 mm")),
    Sketcher.Constraint("DistanceX", 0, 2, -1, 1, Q("5 mm")),
])
pocket10 = body.newObject("PartDesign::Pocket", "Pocket009")
pocket10.Profile = sketch14
pocket10.Length = 4
pocket10.Reversed = True

sketch15 = body.newObject("Sketcher::SketchObject", "Sketch014")
sketch15.AttachmentSupport = (doc.getObject("XY_Plane"), [""])
sketch15.MapMode = "FlatFace"
sketch15.addGeometry([
    Part.LineSegment(App.Vector(-3.5, -22.2, 0), App.Vector(-3.5, -23.9, 0)),
    Part.ArcOfCircle(Part.Circle(App.Vector(0, 0, 0), App.Vector(0, 0, 1), 24.2), math.radians(-98.32), math.radians(-81.68)),
    Part.LineSegment(App.Vector(3.5, -23.9, 0), App.Vector(3.5, -22.2, 0)),
    Part.ArcOfCircle(Part.Circle(App.Vector(0, 0, 0), App.Vector(0, 0, 1), 22.5), math.radians(-98.95), math.radians(-81.05)),
    Part.ArcOfCircle(Part.Circle(App.Vector(0, 0, 0), App.Vector(0, 0, 1), 22.5), math.radians(-128.32), math.radians(-111.68)),
    Part.LineSegment(App.Vector(-13.9, -17.7, 0), App.Vector(-15, -19, 0)),
    Part.ArcOfCircle(Part.Circle(App.Vector(0, 0, 0), App.Vector(0, 0, 1), 24.2), math.radians(-128.32), math.radians(-111.68)),
    Part.LineSegment(App.Vector(-8.9, -22.5, 0), App.Vector(-8.3, -20.9, 0)),
    Part.ArcOfCircle(Part.Circle(App.Vector(0, 0, 0), App.Vector(0, 0, 1), 22.5), math.radians(-68.32), math.radians(-51.68)),
    Part.LineSegment(App.Vector(8.3, -20.9, 0), App.Vector(8.9, -22.5, 0)),
    Part.ArcOfCircle(Part.Circle(App.Vector(0, 0, 0), App.Vector(0, 0, 1), 24.2), math.radians(-68.32), math.radians(-51.68)),
    Part.LineSegment(App.Vector(15, -19, 0), App.Vector(13.9, -17.7, 0)),
], False)
sketch15.addConstraint([
    Sketcher.Constraint("Coincident", 0, 2, 1, 1),
    Sketcher.Constraint("Coincident", 1, 2, 2, 1),
    Sketcher.Constraint("Coincident", 2, 2, 3, 2),
    Sketcher.Constraint("Coincident", 3, 1, 0, 1),
    Sketcher.Constraint("Coincident", 4, 1, 5, 1),
    Sketcher.Constraint("Coincident", 5, 2, 6, 1),
    Sketcher.Constraint("Coincident", 6, 2, 7, 1),
    Sketcher.Constraint("Coincident", 7, 2, 4, 2),
    Sketcher.Constraint("Coincident", 8, 1, 9, 1),
    Sketcher.Constraint("Coincident", 9, 2, 10, 1),
    Sketcher.Constraint("Coincident", 10, 2, 11, 1),
    Sketcher.Constraint("Coincident", 11, 2, 8, 2),
    Sketcher.Constraint("Coincident", 3, 3, -1, 1),
    Sketcher.Constraint("Coincident", 4, 3, -1, 1),
    Sketcher.Constraint("Coincident", 6, 3, -1, 1),
    Sketcher.Constraint("Coincident", 8, 3, -1, 1),
    Sketcher.Constraint("Coincident", 10, 3, -1, 1),
    Sketcher.Constraint("Equal", 3, 4),
    Sketcher.Constraint("Equal", 4, 8),
    Sketcher.Constraint("Equal", 6, 10),
    Sketcher.Constraint("Symmetric", 0, 2, 1, 2, -2),
    Sketcher.Constraint("Parallel", 0, 2),
    Sketcher.Constraint("Horizontal", 7, 2, 8, 1),
    Sketcher.Constraint("Horizontal", 6, 2, 9, 2),
    Sketcher.Constraint("Horizontal", 5, 2, 10, 2),
    Sketcher.Constraint("Horizontal", 4, 1, 11, 2),
    Sketcher.Constraint("Radius", 3, Q("22.5 mm")),
    Sketcher.Constraint("Radius", 6, Q("24.2 mm")),
    Sketcher.Constraint("DistanceX", 0, 2, 1, 2, Q("7 mm")),
    Sketcher.Constraint("DistanceY", 6, 2, 5, 2, Q("3.5 mm")),
    Sketcher.Constraint("Radius", 1, Q("24.199816 mm")),
    Sketcher.Constraint("DistanceY", 6, 2, 7, 2, Q("1.579698 mm")),
    Sketcher.Constraint("Distance", 0, Q("1.71945 mm")),
    Sketcher.Constraint("DistanceY", 2, 2, -1, 1, Q("22.226108 mm")),
    Sketcher.Constraint("DistanceX", 4, 1, -1, 1, Q("13.94988 mm")),
    Sketcher.Constraint("DistanceX", 5, 2, -1, 1, Q("15.003871 mm")),
])
pocket11 = body.newObject("PartDesign::Pocket", "Pocket010")
pocket11.Profile = sketch15
pocket11.Length = 4
pocket11.Reversed = True

doc.recompute()
